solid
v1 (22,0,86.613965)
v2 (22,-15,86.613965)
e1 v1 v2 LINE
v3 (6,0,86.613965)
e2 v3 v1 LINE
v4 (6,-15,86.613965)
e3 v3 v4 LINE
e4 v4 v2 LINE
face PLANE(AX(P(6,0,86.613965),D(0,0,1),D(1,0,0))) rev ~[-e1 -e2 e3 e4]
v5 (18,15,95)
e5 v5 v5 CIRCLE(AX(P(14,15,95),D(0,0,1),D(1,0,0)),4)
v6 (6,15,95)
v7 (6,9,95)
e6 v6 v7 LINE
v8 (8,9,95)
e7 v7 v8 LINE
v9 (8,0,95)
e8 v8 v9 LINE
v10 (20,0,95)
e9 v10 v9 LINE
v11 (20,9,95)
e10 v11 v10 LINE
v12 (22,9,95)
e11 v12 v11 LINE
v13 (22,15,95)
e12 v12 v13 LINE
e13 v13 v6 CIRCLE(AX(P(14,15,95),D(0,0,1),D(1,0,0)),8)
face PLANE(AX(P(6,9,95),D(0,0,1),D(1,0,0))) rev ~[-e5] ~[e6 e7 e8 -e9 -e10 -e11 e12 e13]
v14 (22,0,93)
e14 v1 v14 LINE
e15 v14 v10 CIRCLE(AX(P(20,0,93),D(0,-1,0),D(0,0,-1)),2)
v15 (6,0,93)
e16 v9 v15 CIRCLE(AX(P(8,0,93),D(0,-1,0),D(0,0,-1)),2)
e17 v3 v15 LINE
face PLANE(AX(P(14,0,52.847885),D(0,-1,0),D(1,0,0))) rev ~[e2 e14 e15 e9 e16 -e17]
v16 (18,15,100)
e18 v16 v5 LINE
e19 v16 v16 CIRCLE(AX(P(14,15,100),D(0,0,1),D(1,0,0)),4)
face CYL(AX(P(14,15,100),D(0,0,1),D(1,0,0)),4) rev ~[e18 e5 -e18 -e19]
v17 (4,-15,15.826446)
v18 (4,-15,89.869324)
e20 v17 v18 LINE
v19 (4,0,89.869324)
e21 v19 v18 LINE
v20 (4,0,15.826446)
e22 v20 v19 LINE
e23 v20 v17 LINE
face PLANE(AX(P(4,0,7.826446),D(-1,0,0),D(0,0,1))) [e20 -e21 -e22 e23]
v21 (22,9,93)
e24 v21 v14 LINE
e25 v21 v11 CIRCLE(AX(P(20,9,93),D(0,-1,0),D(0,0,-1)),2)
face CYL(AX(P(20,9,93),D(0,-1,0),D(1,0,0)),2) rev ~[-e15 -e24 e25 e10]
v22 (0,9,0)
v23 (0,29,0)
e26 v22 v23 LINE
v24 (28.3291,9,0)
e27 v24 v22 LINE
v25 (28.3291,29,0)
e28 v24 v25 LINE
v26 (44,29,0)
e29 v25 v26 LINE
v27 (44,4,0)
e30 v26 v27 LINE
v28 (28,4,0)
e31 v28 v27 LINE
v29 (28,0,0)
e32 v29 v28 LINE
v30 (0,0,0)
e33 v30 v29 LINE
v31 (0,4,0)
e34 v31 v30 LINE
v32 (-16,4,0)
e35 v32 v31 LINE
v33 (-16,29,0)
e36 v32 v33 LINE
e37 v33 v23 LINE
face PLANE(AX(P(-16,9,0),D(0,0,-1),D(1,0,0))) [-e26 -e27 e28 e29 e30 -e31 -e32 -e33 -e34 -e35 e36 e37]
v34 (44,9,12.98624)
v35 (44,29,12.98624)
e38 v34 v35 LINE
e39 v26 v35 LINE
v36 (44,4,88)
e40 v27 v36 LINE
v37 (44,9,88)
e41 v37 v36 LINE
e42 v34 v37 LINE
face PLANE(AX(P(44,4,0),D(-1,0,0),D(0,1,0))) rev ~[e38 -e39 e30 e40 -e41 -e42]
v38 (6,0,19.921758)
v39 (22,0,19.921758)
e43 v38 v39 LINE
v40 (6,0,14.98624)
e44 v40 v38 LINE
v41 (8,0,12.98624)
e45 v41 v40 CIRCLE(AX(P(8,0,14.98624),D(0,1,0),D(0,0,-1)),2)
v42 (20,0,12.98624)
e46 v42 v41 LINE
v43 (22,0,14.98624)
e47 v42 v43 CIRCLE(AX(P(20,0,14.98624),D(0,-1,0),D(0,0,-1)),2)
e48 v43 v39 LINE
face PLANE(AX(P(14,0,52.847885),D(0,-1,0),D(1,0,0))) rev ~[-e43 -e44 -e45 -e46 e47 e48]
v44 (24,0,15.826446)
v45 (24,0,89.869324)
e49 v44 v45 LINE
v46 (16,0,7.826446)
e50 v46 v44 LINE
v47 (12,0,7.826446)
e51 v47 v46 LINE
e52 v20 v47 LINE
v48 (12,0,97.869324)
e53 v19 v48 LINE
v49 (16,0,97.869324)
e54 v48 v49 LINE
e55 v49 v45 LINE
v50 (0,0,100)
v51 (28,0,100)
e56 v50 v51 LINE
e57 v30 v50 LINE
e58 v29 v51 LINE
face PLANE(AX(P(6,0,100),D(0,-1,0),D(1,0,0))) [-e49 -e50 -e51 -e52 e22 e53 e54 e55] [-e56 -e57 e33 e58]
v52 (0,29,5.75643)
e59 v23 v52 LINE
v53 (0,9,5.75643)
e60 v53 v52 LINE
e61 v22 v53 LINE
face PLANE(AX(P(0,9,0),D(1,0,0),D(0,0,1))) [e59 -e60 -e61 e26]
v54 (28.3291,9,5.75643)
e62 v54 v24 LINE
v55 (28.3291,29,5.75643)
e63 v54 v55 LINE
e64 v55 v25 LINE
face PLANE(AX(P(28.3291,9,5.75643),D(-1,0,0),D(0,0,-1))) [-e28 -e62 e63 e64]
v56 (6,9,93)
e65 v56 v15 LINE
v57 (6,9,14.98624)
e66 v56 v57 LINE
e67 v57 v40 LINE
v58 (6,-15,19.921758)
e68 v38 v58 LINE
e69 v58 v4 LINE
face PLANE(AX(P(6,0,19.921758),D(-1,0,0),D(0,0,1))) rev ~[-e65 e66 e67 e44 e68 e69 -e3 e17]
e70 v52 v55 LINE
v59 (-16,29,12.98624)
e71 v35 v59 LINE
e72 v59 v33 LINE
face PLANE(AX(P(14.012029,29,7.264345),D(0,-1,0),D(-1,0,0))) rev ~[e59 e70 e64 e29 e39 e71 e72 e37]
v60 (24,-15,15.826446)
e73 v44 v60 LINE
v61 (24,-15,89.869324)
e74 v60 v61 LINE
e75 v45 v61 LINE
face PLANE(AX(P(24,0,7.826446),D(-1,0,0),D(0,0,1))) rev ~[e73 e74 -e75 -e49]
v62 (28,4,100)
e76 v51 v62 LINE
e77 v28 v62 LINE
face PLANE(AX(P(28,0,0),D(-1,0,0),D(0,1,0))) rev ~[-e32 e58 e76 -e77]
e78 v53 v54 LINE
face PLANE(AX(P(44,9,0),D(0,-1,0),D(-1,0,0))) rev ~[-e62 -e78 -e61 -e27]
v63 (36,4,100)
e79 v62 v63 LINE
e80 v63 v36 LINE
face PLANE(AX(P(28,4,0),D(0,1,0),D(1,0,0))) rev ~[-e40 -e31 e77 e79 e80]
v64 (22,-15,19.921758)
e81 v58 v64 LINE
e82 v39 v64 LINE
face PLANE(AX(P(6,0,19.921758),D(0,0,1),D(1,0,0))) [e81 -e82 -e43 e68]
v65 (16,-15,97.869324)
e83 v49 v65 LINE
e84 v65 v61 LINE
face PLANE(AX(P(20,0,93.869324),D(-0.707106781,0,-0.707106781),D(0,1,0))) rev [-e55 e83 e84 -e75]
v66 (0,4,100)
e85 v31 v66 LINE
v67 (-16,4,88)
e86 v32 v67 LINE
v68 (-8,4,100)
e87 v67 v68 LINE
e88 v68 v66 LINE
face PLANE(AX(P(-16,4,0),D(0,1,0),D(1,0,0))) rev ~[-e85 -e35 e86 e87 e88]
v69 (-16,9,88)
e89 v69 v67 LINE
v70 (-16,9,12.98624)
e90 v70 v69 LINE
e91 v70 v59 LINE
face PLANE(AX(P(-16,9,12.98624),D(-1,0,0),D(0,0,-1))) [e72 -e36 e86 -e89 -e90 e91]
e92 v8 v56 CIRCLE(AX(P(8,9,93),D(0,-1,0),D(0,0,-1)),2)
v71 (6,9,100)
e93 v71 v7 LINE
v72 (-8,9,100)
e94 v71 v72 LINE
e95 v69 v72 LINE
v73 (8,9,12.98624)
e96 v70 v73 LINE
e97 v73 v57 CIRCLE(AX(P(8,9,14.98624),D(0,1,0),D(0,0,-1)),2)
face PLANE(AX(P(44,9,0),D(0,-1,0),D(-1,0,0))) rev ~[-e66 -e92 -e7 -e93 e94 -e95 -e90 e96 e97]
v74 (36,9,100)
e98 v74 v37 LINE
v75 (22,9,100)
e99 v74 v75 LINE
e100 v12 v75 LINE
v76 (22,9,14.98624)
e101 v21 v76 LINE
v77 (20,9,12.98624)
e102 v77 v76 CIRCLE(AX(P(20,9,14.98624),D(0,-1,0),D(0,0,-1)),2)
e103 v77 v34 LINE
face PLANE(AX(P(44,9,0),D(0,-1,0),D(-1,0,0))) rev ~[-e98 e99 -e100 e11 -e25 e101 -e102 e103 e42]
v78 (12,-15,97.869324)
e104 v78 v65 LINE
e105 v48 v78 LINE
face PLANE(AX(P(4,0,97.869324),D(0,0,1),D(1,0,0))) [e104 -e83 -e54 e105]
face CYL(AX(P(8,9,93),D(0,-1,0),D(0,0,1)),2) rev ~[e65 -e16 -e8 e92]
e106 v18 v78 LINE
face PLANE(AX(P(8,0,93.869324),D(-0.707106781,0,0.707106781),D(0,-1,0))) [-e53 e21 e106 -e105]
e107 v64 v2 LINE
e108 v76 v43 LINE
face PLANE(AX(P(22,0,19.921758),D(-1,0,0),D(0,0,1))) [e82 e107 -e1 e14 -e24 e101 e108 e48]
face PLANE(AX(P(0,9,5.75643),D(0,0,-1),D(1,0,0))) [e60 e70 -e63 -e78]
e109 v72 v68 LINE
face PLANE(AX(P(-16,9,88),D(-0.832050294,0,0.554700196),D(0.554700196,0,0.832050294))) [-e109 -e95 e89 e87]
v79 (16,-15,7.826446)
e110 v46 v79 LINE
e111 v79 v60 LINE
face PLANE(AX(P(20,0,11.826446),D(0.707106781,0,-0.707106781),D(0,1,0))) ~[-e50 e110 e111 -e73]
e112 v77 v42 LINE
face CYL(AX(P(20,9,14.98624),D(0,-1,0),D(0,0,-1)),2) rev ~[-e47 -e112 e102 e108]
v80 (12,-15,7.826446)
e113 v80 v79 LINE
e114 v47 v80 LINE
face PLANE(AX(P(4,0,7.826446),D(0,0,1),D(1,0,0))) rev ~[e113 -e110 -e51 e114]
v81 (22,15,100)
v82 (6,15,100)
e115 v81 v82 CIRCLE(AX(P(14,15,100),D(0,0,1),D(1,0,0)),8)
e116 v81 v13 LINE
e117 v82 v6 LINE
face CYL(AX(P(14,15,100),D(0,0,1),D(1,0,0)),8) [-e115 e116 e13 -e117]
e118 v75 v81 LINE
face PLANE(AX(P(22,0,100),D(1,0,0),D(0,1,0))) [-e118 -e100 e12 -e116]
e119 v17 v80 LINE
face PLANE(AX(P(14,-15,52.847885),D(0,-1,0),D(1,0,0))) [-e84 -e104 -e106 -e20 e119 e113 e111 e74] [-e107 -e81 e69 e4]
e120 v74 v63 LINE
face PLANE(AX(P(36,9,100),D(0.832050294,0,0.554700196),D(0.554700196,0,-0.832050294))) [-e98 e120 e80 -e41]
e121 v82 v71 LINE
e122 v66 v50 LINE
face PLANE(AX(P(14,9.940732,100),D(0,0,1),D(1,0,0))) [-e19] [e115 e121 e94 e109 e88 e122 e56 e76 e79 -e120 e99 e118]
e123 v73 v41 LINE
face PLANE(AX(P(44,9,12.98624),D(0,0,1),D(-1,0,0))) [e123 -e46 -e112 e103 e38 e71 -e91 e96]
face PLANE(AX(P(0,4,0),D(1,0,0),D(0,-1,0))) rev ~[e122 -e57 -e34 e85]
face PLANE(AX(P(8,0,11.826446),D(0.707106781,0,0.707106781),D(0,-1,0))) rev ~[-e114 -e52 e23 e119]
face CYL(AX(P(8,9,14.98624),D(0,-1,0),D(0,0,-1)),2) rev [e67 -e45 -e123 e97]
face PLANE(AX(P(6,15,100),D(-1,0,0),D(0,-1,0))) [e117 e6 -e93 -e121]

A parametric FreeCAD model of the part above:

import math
import FreeCAD as App
import Part
import Sketcher

V = App.Vector
Q = App.Units.Quantity


def edges_at(feature, points):
    """Names of the edges that pass closest to the given points."""
    edges = feature.Shape.Edges
    near = lambda p: min(range(len(edges)), key=lambda i: edges[i].distToShape(Part.Vertex(*p))[0])
    return sorted({f"Edge{near(p) + 1}" for p in points})

doc = App.newDocument("Part")
body = doc.addObject("PartDesign::Body", "Body")

# Sketch on XY plane
sketch1 = body.newObject("Sketcher::SketchObject", "Sketch")
sketch1.AttachmentSupport = (doc.getObject("XY_Plane"), [""])
sketch1.MapMode = "FlatFace"
sketch1.addGeometry([
    Part.LineSegment(V(28, 4, 0), V(44, 4, 0)),  # 0
    Part.LineSegment(V(44, 4, 0), V(44, 9, 0)),  # 1
    Part.LineSegment(V(44, 9, 0), V(-16, 9, 0)),  # 2
    Part.LineSegment(V(-16, 9, 0), V(-16, 4, 0)),  # 3
    Part.LineSegment(V(-16, 4, 0), V(0, 4, 0)),  # 4
    Part.LineSegment(V(0, 4, 0), V(0, 0, 0)),  # 5
    Part.LineSegment(V(0, 0, 0), V(28, 0, 0)),  # 6
    Part.LineSegment(V(28, 0, 0), V(28, 4, 0)),  # 7
], False)
sketch1.addConstraint([
    Sketcher.Constraint("Coincident", 0, 2, 1, 1),
    Sketcher.Constraint("Coincident", 1, 2, 2, 1),
    Sketcher.Constraint("Coincident", 2, 2, 3, 1),
    Sketcher.Constraint("Coincident", 3, 2, 4, 1),
    Sketcher.Constraint("Coincident", 4, 2, 5, 1),
    Sketcher.Constraint("Coincident", 5, 2, 6, 1),
    Sketcher.Constraint("Coincident", 6, 2, 7, 1),
    Sketcher.Constraint("Coincident", 7, 2, 0, 1),
    Sketcher.Constraint("Horizontal", 0),
    Sketcher.Constraint("Vertical", 1),
    Sketcher.Constraint("Horizontal", 2),
    Sketcher.Constraint("Vertical", 3),
    Sketcher.Constraint("Horizontal", 4),
    Sketcher.Constraint("Vertical", 5),
    Sketcher.Constraint("Horizontal", 6),
    Sketcher.Constraint("Vertical", 7),
    Sketcher.Constraint("Coincident", 5, 2, -1, 1),
    Sketcher.Constraint("Horizontal", 0, 2, 3, 2),
    Sketcher.Constraint("Equal", 0, 4),
    Sketcher.Constraint("DistanceX", 0, 1, 0, 2, Q("16 mm")),
    Sketcher.Constraint("DistanceX", 2, 2, 2, 1, Q("60 mm")),
    Sketcher.Constraint("DistanceY", 1, 1, 1, 2, Q("5 mm")),
    Sketcher.Constraint("DistanceY", 5, 2, 5, 1, Q("4 mm")),
])
pad1 = body.newObject("PartDesign::Pad", "Pad")
pad1.Profile = sketch1
pad1.Length = 100

# Sketch on XY plane
sketch2 = body.newObject("Sketcher::SketchObject", "Sketch001")
sketch2.AttachmentSupport = (doc.getObject("XY_Plane"), [""])
sketch2.MapMode = "FlatFace"
sketch2.AttachmentOffset = App.Placement(V(0, 0, 100), App.Rotation())
sketch2.addGeometry([
    Part.LineSegment(V(6, 15, 0), V(6, 0, 0)),  # 0
    Part.LineSegment(V(6, 0, 0), V(22, 0, 0)),  # 1
    Part.LineSegment(V(22, 0, 0), V(22, 15, 0)),  # 2
    Part.ArcOfCircle(Part.Circle(V(14, 15, 0), V(0, 0, 1), 8), math.radians(0), math.radians(180)),  # 3
    Part.Circle(V(14, 15, 0), V(0, 0, 1), 4),  # 4
], False)
sketch2.addConstraint([
    Sketcher.Constraint("Coincident", 0, 2, 1, 1),
    Sketcher.Constraint("Coincident", 1, 2, 2, 1),
    Sketcher.Constraint("Tangent", 2, 2, 3, 1),
    Sketcher.Constraint("Tangent", 3, 2, 0, 1),
    Sketcher.Constraint("Vertical", 0),
    Sketcher.Constraint("Horizontal", 1),
    Sketcher.Constraint("Vertical", 2),
    Sketcher.Constraint("Coincident", 4, 3, 3, 3),
    Sketcher.Constraint("PointOnObject", 0, 2, -1),
    Sketcher.Constraint("Diameter", 4, Q("8 mm")),
    Sketcher.Constraint("Radius", 3, Q("8 mm")),
    Sketcher.Constraint("DistanceY", 0, 2, 0, 1, Q("15 mm")),
    Sketcher.Constraint("DistanceX", -1, 1, 3, 3, Q("14 mm")),
])
pad2 = body.newObject("PartDesign::Pad", "Pad001")
pad2.Profile = sketch2
pad2.Length = 5
pad2.Reversed = True

# Sketch on XZ plane
sketch3 = body.newObject("Sketcher::SketchObject", "Sketch002")
sketch3.AttachmentSupport = (doc.getObject("XZ_Plane"), [""])
sketch3.MapMode = "FlatFace"
sketch3.AttachmentOffset = App.Placement(V(0, 0, -9), App.Rotation())
sketch3.addGeometry([
    Part.LineSegment(V(44, 88, 0), V(36, 100, 0)),  # 0
    Part.LineSegment(V(36, 100, 0), V(44, 100, 0)),  # 1
    Part.LineSegment(V(44, 100, 0), V(44, 88, 0)),  # 2
    Part.LineSegment(V(-16, 100, 0), V(-8, 100, 0)),  # 3
    Part.LineSegment(V(-8, 100, 0), V(-16, 88, 0)),  # 4
    Part.LineSegment(V(-16, 88, 0), V(-16, 100, 0)),  # 5
], False)
sketch3.addConstraint([
    Sketcher.Constraint("Coincident", 0, 2, 1, 1),
    Sketcher.Constraint("Coincident", 1, 2, 2, 1),
    Sketcher.Constraint("Coincident", 2, 2, 0, 1),
    Sketcher.Constraint("Coincident", 3, 2, 4, 1),
    Sketcher.Constraint("Coincident", 4, 2, 5, 1),
    Sketcher.Constraint("Coincident", 5, 2, 3, 1),
    Sketcher.Constraint("Horizontal", 1),
    Sketcher.Constraint("Vertical", 2),
    Sketcher.Constraint("Horizontal", 3),
    Sketcher.Constraint("Vertical", 5),
    Sketcher.Constraint("Horizontal", 1, 2, 3, 2),
    Sketcher.Constraint("Horizontal", 2, 2, 4, 2),
    Sketcher.Constraint("Equal", 1, 3),
    Sketcher.Constraint("DistanceX", 1, 1, 1, 2, Q("8 mm")),
    Sketcher.Constraint("DistanceY", 2, 2, 2, 1, Q("12 mm")),
    Sketcher.Constraint("DistanceX", -1, 1, 0, 2, Q("36 mm")),
    Sketcher.Constraint("DistanceY", -1, 1, 0, 2, Q("100 mm")),
    Sketcher.Constraint("DistanceX", 3, 2, -1, 1, Q("8 mm")),
])
pocket1 = body.newObject("PartDesign::Pocket", "Pocket")
pocket1.Profile = sketch3
pocket1.Type = "ThroughAll"
pocket1.Reversed = True

# Sketch on XZ plane
sketch4 = body.newObject("Sketcher::SketchObject", "Sketch003")
sketch4.AttachmentSupport = (doc.getObject("XZ_Plane"), [""])
sketch4.MapMode = "FlatFace"
sketch4.AttachmentOffset = App.Placement(V(0, 0, -9), App.Rotation())
sketch4.addGeometry([
    Part.LineSegment(V(0, 0, 0), V(-16, 0, 0)),  # 0
    Part.LineSegment(V(-16, 0, 0), V(-16, 13, 0)),  # 1
    Part.LineSegment(V(-16, 13, 0), V(44, 13, 0)),  # 2
    Part.LineSegment(V(44, 13, 0), V(44, 0, 0)),  # 3
    Part.LineSegment(V(44, 0, 0), V(28, 0, 0)),  # 4
    Part.LineSegment(V(28, 0, 0), V(28, 6, 0)),  # 5
    Part.LineSegment(V(28, 6, 0), V(0, 6, 0)),  # 6
    Part.LineSegment(V(0, 6, 0), V(0, 0, 0)),  # 7
], False)
sketch4.addConstraint([
    Sketcher.Constraint("Coincident", 0, 2, 1, 1),
    Sketcher.Constraint("Coincident", 1, 2, 2, 1),
    Sketcher.Constraint("Coincident", 2, 2, 3, 1),
    Sketcher.Constraint("Coincident", 3, 2, 4, 1),
    Sketcher.Constraint("Coincident", 4, 2, 5, 1),
    Sketcher.Constraint("Coincident", 5, 2, 6, 1),
    Sketcher.Constraint("Coincident", 6, 2, 7, 1),
    Sketcher.Constraint("Coincident", 7, 2, 0, 1),
    Sketcher.Constraint("Horizontal", 0),
    Sketcher.Constraint("Vertical", 1),
    Sketcher.Constraint("Horizontal", 2),
    Sketcher.Constraint("Vertical", 3),
    Sketcher.Constraint("Horizontal", 4),
    Sketcher.Constraint("Vertical", 5),
    Sketcher.Constraint("Horizontal", 6),
    Sketcher.Constraint("Vertical", 7),
    Sketcher.Constraint("Coincident", 7, 2, -1, 1),
    Sketcher.Constraint("PointOnObject", 3, 2, -1),
    Sketcher.Constraint("DistanceX", 0, 2, 0, 1, Q("16 mm")),
    Sketcher.Constraint("DistanceX", 2, 1, 2, 2, Q("60 mm")),
    Sketcher.Constraint("DistanceX", 4, 2, 4, 1, Q("15.6709 mm")),
    Sketcher.Constraint("DistanceY", 1, 1, 1, 2, Q("12.98624 mm")),
    Sketcher.Constraint("DistanceY", 5, 1, 5, 2, Q("5.75643 mm")),
])
pad3 = body.newObject("PartDesign::Pad", "Pad002")
pad3.Profile = sketch4
pad3.Length = 20
pad3.Reversed = True

# Sketch on XZ plane
sketch5 = body.newObject("Sketcher::SketchObject", "Sketch004")
sketch5.AttachmentSupport = (doc.getObject("XZ_Plane"), [""])
sketch5.MapMode = "FlatFace"
sketch5.AttachmentOffset = App.Placement(V(0, 0, -9), App.Rotation())
sketch5.addGeometry([
    Part.LineSegment(V(6, 13, 0), V(6, 95, 0)),
    Part.LineSegment(V(6, 95, 0), V(22, 95, 0)),
    Part.LineSegment(V(22, 95, 0), V(22, 13, 0)),
    Part.LineSegment(V(22, 13, 0), V(6, 13, 0)),
], False)
sketch5.addConstraint([
    Sketcher.Constraint("Coincident", 0, 2, 1, 1),
    Sketcher.Constraint("Coincident", 1, 2, 2, 1),
    Sketcher.Constraint("Coincident", 2, 2, 3, 1),
    Sketcher.Constraint("Coincident", 3, 2, 0, 1),
    Sketcher.Constraint("Vertical", 0),
    Sketcher.Constraint("Horizontal", 1),
    Sketcher.Constraint("Vertical", 2),
    Sketcher.Constraint("Horizontal", 3),
    Sketcher.Constraint("DistanceX", 1, 1, 1, 2, Q("16 mm")),
    Sketcher.Constraint("DistanceX", -1, 1, 0, 2, Q("6 mm")),
    Sketcher.Constraint("DistanceY", -1, 1, 0, 2, Q("95 mm")),
    Sketcher.Constraint("DistanceY", 0, 1, 0, 2, Q("82.01376 mm")),
])
pocket2 = body.newObject("PartDesign::Pocket", "Pocket001")
pocket2.Profile = sketch5
pocket2.Length = 20
pocket2.Reversed = True
doc.recompute()

fillet = body.newObject("PartDesign::Fillet", "Fillet")
fillet.Base = (pocket2, edges_at(pocket2, [
    (6, 4.5, 12.986),
    (22, 4.5, 12.986),
    (22, 4.5, 95),
    (6, 4.5, 95),
]))
fillet.Radius = 2

# Sketch on XZ plane
sketch6 = body.newObject("Sketcher::SketchObject", "Sketch005")
sketch6.AttachmentSupport = (doc.getObject("XZ_Plane"), [""])
sketch6.MapMode = "FlatFace"
sketch6.addGeometry([
    Part.LineSegment(V(4, 98, 0), V(4, 8, 0)),  # 0
    Part.LineSegment(V(4, 8, 0), V(24, 8, 0)),  # 1
    Part.LineSegment(V(24, 8, 0), V(24, 98, 0)),  # 2
    Part.LineSegment(V(24, 98, 0), V(4, 98, 0)),  # 3
    Part.LineSegment(V(22, 20, 0), V(6, 20, 0)),  # 4
    Part.LineSegment(V(6, 20, 0), V(6, 87, 0)),  # 5
    Part.LineSegment(V(6, 87, 0), V(22, 87, 0)),  # 6
    Part.LineSegment(V(22, 87, 0), V(22, 20, 0)),  # 7
], False)
sketch6.addConstraint([
    Sketcher.Constraint("Coincident", 0, 2, 1, 1),
    Sketcher.Constraint("Coincident", 1, 2, 2, 1),
    Sketcher.Constraint("Coincident", 2, 2, 3, 1),
    Sketcher.Constraint("Coincident", 3, 2, 0, 1),
    Sketcher.Constraint("Coincident", 4, 2, 5, 1),
    Sketcher.Constraint("Coincident", 5, 2, 6, 1),
    Sketcher.Constraint("Coincident", 6, 2, 7, 1),
    Sketcher.Constraint("Coincident", 7, 2, 4, 1),
    Sketcher.Constraint("Vertical", 0),
    Sketcher.Constraint("Horizontal", 1),
    Sketcher.Constraint("Vertical", 2),
    Sketcher.Constraint("Horizontal", 3),
    Sketcher.Constraint("Horizontal", 4),
    Sketcher.Constraint("Vertical", 5),
    Sketcher.Constraint("Horizontal", 6),
    Sketcher.Constraint("Vertical", 7),
    Sketcher.Constraint("DistanceX", 1, 1, 1, 2, Q("20 mm")),
    Sketcher.Constraint("DistanceX", 4, 2, 4, 1, Q("16 mm")),
    Sketcher.Constraint("DistanceX", -1, 1, 0, 2, Q("4 mm")),
    Sketcher.Constraint("DistanceX", -1, 1, 4, 2, Q("6 mm")),
    Sketcher.Constraint("DistanceY", 0, 2, 0, 1, Q("90.042879 mm")),
    Sketcher.Constraint("DistanceY", 5, 1, 5, 2, Q("66.692207 mm")),
    Sketcher.Constraint("DistanceY", 5, 2, 3, 2, Q("11.25536 mm")),
    Sketcher.Constraint("DistanceY", -1, 1, 0, 2, Q("7.826446 mm")),
])
pad4 = body.newObject("PartDesign::Pad", "Pad003")
pad4.Profile = sketch6
pad4.Length = 15
doc.recompute()

chamfer = body.newObject("PartDesign::Chamfer", "Chamfer")
chamfer.Base = (pad4, edges_at(pad4, [
    (4, -7.5, 97.869),
    (4, -7.5, 7.826),
    (24, -7.5, 7.826),
    (24, -7.5, 97.869),
]))
chamfer.Size = 8

doc.recompute()
